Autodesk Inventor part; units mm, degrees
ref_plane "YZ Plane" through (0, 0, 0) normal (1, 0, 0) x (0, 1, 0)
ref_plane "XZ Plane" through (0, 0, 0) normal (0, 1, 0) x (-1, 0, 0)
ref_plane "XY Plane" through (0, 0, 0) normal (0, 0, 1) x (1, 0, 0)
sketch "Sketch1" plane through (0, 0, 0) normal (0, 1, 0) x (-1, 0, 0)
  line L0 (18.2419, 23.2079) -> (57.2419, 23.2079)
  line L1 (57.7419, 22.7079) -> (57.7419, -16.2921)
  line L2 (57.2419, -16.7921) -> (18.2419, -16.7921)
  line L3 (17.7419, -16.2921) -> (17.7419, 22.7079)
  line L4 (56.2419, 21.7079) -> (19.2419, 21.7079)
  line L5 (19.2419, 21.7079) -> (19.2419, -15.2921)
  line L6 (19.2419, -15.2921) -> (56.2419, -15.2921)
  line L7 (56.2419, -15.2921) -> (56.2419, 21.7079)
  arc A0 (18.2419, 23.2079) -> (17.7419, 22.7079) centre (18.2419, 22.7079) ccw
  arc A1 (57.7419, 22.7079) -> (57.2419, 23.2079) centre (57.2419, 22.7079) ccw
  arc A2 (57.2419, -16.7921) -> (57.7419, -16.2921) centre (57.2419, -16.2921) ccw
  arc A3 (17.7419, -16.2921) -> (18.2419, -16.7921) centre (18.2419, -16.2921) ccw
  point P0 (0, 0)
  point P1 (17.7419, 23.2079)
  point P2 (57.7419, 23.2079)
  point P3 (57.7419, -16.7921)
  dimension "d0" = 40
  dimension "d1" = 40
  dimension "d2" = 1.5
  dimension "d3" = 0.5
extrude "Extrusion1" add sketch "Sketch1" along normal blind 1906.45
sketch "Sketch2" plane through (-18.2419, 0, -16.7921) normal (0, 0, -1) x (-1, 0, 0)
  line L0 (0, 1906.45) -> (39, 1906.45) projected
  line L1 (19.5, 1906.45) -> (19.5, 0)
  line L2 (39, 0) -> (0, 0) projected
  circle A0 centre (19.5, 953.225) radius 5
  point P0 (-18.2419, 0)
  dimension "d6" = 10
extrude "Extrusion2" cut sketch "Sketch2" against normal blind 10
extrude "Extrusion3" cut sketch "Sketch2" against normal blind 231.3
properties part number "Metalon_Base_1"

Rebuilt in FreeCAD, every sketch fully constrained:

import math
import FreeCAD as App
import Part
import Sketcher

V = App.Vector
Q = App.Units.Quantity


def add_polygon(sketch, points):
    """Adds a closed chain of lines whose ends are joined by coincident constraints."""
    first, n = sketch.GeometryCount, len(points)
    for a, b in zip(points, points[1:] + points[:1]):
        sketch.addGeometry(Part.LineSegment(App.Vector(*a, 0), App.Vector(*b, 0)), False)
    for i in range(n):
        sketch.addConstraint(Sketcher.Constraint("Coincident", first + i, 2, first + (i + 1) % n, 1))

doc = App.newDocument("Part")
body = doc.addObject("PartDesign::Body", "Body")

sketch1 = body.newObject("Sketcher::SketchObject", "Sketch")
sketch1.AttachmentSupport = (doc.getObject("XZ_Plane"), [""])
sketch1.MapMode = "FlatFace"
sketch1.addGeometry(Part.LineSegment(V(-57.2419, 23.2079, 0), V(-18.2419, 23.2079, 0)), False)
sketch1.addGeometry(Part.ArcOfCircle(Part.Circle(V(-18.2419, 22.7079, 0), V(0, 0, 1), 0.5), math.radians(0), math.radians(90)), False)
sketch1.addGeometry(Part.LineSegment(V(-17.7419, 22.7079, 0), V(-17.7419, -16.2921, 0)), False)
sketch1.addGeometry(Part.ArcOfCircle(Part.Circle(V(-18.2419, -16.2921, 0), V(0, 0, 1), 0.5), math.radians(-90), math.radians(0)), False)
sketch1.addGeometry(Part.LineSegment(V(-18.2419, -16.7921, 0), V(-57.2419, -16.7921, 0)), False)
sketch1.addGeometry(Part.ArcOfCircle(Part.Circle(V(-57.2419, -16.2921, 0), V(0, 0, 1), 0.5), math.radians(180), math.radians(270)), False)
sketch1.addGeometry(Part.LineSegment(V(-57.7419, -16.2921, 0), V(-57.7419, 22.7079, 0)), False)
sketch1.addGeometry(Part.ArcOfCircle(Part.Circle(V(-57.2419, 22.7079, 0), V(0, 0, 1), 0.5), math.radians(90), math.radians(180)), False)
add_polygon(sketch1, [(-19.2419, 21.7079), (-56.2419, 21.7079), (-56.2419, -15.2921), (-19.2419, -15.2921)])
sketch1.addConstraint([
    Sketcher.Constraint("Tangent", 0, 2, 1, 2),
    Sketcher.Constraint("Tangent", 1, 1, 2, 1),
    Sketcher.Constraint("Tangent", 2, 2, 3, 2),
    Sketcher.Constraint("Tangent", 3, 1, 4, 1),
    Sketcher.Constraint("Tangent", 4, 2, 5, 2),
    Sketcher.Constraint("Tangent", 5, 1, 6, 1),
    Sketcher.Constraint("Tangent", 6, 2, 7, 2),
    Sketcher.Constraint("Tangent", 7, 1, 0, 1),
    Sketcher.Constraint("Horizontal", 0),
    Sketcher.Constraint("Vertical", 2),
    Sketcher.Constraint("Horizontal", 4),
    Sketcher.Constraint("Vertical", 6),
    Sketcher.Constraint("Horizontal", 8),
    Sketcher.Constraint("Vertical", 9),
    Sketcher.Constraint("Horizontal", 10),
    Sketcher.Constraint("Vertical", 11),
    Sketcher.Constraint("Equal", 1, 3),
    Sketcher.Constraint("Equal", 3, 5),
    Sketcher.Constraint("Equal", 5, 7),
    Sketcher.Constraint("Equal", 4, 2),
    Sketcher.Constraint("Equal", 10, 9),
    Sketcher.Constraint("Radius", 1, Q("0.5 mm")),
    Sketcher.Constraint("DistanceX", 6, 2, 8, 2, Q("1.5 mm")),
    Sketcher.Constraint("DistanceY", 8, 2, 7, 1, Q("1.5 mm")),
    Sketcher.Constraint("DistanceY", 4, 2, 9, 2, Q("1.5 mm")),
    Sketcher.Constraint("DistanceX", 0, 1, 0, 2, Q("39 mm")),
    Sketcher.Constraint("DistanceX", 1, 3, -1, 1, Q("18.242 mm")),
    Sketcher.Constraint("DistanceY", -1, 1, 1, 3, Q("22.708 mm")),
])
pad1 = body.newObject("PartDesign::Pad", "Pad")
pad1.Profile = sketch1
pad1.Length = 1906.45
pad1.Reversed = True

sketch2 = body.newObject("Sketcher::SketchObject", "Sketch001")
sketch2.AttachmentSupport = (doc.getObject("XY_Plane"), [""])
sketch2.MapMode = "FlatFace"
sketch2.AttachmentOffset = App.Placement(V(0, 0, -16.7921), App.Rotation())
sketch2.addGeometry(Part.Circle(V(-37.7419, 953.225, 0), V(0, 0, 1), 5), False)
sketch2.addConstraint([
    Sketcher.Constraint("Diameter", 0, Q("10 mm")),
    Sketcher.Constraint("DistanceX", 0, 3, -1, 1, Q("37.742 mm")),
    Sketcher.Constraint("DistanceY", -1, 1, 0, 3, Q("953.225 mm")),
])
pocket1 = body.newObject("PartDesign::Pocket", "Pocket")
pocket1.Profile = sketch2
pocket1.Length = 10
pocket1.Reversed = True

sketch3 = body.newObject("Sketcher::SketchObject", "Sketch002")
sketch3.AttachmentSupport = (doc.getObject("XY_Plane"), [""])
sketch3.MapMode = "FlatFace"
sketch3.AttachmentOffset = App.Placement(V(0, 0, -16.7921), App.Rotation())
sketch3.addGeometry(Part.Circle(V(-37.7419, 953.225, 0), V(0, 0, 1), 5), False)
sketch3.addConstraint([
    Sketcher.Constraint("Diameter", 0, Q("10 mm")),
    Sketcher.Constraint("DistanceX", 0, 3, -1, 1, Q("37.742 mm")),
    Sketcher.Constraint("DistanceY", -1, 1, 0, 3, Q("953.225 mm")),
])
pocket2 = body.newObject("PartDesign::Pocket", "Pocket001")
pocket2.Profile = sketch3
pocket2.Length = 231.3
pocket2.Reversed = True

doc.recompute()
